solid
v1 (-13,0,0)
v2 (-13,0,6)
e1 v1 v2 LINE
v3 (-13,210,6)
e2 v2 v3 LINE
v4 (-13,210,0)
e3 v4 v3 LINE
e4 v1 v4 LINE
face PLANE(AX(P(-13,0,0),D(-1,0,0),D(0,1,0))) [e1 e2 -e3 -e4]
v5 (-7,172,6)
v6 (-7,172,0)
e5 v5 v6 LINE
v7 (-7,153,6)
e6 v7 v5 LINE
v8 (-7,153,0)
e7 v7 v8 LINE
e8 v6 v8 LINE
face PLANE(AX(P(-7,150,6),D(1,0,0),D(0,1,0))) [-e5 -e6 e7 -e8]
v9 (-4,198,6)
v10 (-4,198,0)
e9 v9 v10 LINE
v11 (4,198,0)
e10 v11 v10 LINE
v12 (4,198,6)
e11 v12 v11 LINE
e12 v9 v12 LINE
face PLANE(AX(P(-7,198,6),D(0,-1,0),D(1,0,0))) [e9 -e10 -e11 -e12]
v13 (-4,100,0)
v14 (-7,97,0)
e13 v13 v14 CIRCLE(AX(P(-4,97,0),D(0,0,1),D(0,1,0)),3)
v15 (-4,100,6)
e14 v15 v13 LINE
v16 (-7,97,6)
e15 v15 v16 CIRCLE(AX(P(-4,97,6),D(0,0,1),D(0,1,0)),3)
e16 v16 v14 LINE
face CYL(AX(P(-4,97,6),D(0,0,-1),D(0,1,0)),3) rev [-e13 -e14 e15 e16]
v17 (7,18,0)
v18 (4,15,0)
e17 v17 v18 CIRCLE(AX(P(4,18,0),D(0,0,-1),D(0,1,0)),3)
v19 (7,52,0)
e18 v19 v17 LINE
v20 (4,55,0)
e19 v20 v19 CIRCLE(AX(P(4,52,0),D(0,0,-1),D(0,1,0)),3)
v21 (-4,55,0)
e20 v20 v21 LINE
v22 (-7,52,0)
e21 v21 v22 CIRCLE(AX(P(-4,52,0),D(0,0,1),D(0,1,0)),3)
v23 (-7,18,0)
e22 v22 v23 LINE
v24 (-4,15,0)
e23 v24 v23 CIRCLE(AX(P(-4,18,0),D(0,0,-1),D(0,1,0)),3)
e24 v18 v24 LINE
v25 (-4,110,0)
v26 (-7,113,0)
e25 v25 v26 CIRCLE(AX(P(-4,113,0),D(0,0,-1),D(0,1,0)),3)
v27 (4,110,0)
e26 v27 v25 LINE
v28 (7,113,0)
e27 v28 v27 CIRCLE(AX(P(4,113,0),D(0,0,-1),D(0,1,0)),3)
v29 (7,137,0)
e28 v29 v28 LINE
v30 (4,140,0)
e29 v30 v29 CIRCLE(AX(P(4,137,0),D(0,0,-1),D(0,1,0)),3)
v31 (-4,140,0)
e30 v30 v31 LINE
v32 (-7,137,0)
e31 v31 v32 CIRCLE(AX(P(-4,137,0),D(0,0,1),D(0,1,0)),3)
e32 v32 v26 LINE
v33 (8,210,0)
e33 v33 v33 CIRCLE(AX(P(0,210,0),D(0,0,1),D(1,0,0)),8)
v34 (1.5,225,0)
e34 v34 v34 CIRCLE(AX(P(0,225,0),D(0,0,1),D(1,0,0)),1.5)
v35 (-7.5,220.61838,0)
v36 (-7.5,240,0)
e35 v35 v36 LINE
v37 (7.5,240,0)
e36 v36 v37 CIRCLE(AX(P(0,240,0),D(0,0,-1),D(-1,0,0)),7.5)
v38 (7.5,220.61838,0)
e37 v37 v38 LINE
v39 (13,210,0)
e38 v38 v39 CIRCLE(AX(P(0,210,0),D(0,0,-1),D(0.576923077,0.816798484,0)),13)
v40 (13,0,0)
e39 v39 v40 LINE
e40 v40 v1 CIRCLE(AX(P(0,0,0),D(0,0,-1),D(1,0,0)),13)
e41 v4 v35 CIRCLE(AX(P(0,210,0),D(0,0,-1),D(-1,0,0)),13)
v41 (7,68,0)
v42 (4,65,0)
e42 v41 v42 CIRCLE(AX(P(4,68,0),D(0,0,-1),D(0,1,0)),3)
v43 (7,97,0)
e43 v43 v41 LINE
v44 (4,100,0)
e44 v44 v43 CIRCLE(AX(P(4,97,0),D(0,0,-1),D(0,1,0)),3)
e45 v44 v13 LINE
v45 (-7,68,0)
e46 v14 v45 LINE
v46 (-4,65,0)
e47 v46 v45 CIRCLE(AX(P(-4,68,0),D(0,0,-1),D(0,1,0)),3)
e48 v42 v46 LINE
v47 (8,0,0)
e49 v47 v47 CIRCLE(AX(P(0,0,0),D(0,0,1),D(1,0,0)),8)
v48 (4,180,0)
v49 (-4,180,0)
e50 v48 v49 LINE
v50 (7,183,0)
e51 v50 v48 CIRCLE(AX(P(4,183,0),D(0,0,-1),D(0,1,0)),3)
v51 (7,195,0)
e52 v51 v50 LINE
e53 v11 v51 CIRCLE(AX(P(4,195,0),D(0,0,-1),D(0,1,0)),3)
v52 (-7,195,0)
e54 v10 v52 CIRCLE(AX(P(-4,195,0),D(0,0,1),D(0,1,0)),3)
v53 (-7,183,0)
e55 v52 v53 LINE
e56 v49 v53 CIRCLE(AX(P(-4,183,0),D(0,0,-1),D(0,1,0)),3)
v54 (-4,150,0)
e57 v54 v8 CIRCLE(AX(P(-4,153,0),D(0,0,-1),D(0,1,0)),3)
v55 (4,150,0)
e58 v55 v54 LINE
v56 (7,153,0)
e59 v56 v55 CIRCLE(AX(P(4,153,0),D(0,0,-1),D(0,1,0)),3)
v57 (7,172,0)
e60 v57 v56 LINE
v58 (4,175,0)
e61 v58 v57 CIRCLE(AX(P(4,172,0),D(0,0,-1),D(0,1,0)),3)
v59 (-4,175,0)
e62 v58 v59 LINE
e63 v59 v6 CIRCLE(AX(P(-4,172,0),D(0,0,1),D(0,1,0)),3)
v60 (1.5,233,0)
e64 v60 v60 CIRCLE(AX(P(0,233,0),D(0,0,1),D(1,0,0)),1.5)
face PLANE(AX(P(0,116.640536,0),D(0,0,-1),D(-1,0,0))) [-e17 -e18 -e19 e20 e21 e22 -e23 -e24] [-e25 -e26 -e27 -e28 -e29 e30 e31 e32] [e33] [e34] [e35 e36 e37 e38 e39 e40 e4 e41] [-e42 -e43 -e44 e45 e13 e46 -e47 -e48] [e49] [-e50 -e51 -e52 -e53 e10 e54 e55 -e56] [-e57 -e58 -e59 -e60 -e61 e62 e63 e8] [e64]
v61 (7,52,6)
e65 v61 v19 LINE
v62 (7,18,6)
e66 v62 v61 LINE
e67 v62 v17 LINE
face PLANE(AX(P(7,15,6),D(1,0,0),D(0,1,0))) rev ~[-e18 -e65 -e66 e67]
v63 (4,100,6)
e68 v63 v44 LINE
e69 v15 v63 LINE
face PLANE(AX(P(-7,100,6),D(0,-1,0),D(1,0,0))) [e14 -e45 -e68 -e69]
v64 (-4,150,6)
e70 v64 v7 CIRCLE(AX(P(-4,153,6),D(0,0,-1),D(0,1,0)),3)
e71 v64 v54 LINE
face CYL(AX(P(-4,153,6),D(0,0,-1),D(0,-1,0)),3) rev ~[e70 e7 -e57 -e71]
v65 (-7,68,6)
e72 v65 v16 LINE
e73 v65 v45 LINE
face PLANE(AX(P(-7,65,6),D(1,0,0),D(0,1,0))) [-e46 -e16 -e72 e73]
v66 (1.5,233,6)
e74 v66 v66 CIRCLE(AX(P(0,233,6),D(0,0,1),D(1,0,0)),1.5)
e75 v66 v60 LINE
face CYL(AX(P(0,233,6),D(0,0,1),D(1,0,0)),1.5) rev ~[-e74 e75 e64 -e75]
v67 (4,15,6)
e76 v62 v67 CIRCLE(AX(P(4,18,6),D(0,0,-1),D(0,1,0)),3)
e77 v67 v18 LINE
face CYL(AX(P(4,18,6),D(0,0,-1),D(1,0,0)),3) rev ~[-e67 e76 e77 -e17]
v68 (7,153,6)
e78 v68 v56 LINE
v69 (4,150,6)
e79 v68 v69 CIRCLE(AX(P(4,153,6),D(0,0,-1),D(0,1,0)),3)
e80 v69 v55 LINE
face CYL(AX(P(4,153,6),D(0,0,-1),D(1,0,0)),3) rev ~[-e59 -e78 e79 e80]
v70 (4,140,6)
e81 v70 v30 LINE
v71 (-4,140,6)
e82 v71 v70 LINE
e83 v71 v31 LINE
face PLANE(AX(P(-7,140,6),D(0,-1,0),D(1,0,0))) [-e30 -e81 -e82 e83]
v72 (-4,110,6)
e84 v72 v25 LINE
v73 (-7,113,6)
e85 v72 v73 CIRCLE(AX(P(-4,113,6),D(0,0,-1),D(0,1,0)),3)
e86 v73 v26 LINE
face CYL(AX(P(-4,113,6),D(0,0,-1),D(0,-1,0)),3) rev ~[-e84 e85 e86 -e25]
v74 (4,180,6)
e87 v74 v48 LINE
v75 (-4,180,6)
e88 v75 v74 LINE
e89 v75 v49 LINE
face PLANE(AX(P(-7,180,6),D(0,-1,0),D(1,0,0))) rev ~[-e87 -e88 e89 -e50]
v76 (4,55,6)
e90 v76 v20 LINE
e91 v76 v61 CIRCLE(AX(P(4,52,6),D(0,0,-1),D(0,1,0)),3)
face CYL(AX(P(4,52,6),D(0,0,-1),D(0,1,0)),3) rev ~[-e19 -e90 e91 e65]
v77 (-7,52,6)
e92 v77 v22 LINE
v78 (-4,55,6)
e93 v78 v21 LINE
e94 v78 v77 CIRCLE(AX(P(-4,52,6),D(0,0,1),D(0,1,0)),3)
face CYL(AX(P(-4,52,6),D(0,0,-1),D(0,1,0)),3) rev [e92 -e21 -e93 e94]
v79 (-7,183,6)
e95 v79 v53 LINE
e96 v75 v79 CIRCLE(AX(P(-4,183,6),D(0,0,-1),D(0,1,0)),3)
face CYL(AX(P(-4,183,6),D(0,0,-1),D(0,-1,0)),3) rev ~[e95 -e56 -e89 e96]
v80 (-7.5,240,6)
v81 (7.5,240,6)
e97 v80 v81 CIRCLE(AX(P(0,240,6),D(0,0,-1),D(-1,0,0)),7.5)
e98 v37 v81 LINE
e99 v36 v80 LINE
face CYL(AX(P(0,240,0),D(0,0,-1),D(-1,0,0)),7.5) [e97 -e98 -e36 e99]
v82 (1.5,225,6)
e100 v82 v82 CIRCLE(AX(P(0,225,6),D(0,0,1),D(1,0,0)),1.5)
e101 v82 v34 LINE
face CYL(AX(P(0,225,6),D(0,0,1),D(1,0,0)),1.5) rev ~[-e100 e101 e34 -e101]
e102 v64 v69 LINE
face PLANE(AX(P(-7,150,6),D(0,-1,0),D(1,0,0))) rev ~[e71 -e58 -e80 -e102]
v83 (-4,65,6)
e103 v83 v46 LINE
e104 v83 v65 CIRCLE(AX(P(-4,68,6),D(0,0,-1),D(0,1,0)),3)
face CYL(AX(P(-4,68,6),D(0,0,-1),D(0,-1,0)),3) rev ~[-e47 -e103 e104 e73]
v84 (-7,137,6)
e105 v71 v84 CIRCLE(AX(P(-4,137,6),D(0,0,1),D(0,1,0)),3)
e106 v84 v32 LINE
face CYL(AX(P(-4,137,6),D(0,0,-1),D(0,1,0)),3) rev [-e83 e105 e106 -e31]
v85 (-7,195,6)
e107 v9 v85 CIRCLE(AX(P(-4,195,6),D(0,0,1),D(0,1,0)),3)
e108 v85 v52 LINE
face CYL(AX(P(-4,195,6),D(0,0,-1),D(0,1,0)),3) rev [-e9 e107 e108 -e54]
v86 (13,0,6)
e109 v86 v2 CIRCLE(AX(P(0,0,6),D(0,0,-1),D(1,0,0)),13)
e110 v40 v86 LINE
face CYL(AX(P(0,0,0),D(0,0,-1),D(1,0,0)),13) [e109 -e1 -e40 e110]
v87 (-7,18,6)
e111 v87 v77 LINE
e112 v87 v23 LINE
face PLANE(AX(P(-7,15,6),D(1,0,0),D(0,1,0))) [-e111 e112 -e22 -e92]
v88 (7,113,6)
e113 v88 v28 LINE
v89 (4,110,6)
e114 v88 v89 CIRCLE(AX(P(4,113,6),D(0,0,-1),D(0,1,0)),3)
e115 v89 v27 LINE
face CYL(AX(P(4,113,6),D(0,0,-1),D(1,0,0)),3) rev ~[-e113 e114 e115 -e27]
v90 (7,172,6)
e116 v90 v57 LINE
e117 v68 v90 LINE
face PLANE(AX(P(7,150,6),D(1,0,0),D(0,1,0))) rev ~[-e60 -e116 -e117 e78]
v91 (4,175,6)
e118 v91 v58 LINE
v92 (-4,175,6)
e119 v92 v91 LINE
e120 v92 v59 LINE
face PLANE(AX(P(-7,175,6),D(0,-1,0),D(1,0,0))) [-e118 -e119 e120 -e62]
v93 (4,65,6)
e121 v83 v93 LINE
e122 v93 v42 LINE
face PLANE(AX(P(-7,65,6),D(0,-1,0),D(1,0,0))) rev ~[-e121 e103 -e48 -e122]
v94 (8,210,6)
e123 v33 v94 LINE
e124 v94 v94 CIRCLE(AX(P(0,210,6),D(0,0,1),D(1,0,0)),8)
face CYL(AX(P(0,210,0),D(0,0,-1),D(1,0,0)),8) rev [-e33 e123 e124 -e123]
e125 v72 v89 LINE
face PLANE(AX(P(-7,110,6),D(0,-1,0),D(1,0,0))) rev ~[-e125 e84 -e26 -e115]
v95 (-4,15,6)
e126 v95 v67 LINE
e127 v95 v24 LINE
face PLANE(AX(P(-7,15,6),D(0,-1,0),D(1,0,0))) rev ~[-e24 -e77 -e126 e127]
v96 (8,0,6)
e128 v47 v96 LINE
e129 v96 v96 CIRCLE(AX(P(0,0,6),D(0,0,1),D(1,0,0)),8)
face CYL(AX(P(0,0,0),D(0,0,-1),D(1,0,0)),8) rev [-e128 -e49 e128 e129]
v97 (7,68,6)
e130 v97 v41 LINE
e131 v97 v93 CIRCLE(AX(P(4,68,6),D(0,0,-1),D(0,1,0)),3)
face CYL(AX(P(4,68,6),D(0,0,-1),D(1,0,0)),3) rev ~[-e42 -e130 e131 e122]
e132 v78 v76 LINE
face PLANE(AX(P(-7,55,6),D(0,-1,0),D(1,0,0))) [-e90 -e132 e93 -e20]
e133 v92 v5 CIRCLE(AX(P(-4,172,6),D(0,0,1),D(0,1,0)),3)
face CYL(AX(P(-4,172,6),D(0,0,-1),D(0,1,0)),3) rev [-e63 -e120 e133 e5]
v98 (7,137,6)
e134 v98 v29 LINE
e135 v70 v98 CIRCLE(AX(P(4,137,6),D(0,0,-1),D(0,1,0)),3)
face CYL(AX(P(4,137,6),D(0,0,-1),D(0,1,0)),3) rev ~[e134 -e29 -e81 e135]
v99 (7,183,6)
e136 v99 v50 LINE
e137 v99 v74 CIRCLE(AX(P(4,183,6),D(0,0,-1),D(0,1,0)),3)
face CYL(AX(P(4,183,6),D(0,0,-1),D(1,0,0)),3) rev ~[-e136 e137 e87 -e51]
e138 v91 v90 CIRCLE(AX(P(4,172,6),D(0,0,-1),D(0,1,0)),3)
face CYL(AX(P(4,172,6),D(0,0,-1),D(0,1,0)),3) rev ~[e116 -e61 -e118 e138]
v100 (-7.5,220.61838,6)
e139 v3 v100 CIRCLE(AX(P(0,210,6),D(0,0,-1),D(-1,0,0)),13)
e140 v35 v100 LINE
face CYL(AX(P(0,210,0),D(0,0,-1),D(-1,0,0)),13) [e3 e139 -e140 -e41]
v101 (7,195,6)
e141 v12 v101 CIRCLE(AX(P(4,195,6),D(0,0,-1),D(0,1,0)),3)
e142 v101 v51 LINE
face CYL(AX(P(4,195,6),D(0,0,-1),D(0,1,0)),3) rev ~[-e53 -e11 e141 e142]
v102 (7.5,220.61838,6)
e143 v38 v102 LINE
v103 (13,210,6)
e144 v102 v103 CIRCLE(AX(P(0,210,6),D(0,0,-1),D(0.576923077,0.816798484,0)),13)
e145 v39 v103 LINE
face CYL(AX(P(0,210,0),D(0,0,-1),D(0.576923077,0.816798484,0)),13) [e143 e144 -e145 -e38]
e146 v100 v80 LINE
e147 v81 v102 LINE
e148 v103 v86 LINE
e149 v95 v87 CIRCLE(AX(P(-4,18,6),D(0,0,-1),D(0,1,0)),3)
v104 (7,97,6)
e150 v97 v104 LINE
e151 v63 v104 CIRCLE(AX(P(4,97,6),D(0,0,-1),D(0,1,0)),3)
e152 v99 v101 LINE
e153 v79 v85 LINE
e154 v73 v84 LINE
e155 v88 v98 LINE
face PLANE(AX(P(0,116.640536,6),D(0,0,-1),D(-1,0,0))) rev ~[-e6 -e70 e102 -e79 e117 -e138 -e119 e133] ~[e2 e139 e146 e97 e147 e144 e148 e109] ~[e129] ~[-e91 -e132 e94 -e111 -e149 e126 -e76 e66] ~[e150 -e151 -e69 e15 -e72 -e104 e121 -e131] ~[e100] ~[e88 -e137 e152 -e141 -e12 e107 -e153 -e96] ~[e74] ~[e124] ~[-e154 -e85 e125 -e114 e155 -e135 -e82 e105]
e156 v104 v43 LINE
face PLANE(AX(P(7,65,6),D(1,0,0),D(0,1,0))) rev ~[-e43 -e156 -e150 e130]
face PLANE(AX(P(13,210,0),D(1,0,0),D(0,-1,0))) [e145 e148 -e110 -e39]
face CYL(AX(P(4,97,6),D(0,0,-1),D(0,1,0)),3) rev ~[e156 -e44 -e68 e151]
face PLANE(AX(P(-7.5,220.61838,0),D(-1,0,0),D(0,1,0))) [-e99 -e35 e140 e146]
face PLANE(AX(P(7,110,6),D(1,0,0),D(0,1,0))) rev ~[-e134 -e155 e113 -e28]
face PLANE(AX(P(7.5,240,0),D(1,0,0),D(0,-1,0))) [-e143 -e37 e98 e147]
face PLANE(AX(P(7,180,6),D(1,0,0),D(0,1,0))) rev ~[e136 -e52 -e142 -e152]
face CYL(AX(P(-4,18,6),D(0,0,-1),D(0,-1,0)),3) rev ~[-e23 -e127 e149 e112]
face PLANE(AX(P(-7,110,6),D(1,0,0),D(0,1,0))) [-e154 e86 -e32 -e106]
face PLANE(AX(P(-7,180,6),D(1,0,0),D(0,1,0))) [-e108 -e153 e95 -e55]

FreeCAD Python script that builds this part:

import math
import FreeCAD as App
import Part
import Sketcher


def edges_at(feature, points):
    """Names of the edges that pass closest to the given points."""
    edges = feature.Shape.Edges
    near = lambda p: min(range(len(edges)), key=lambda i: edges[i].distToShape(Part.Vertex(*p))[0])
    return sorted({f"Edge{near(p) + 1}" for p in points})


def add_polygon(sketch, points):
    """Adds a closed chain of lines whose ends are joined by coincident constraints."""
    first, n = sketch.GeometryCount, len(points)
    for a, b in zip(points, points[1:] + points[:1]):
        sketch.addGeometry(Part.LineSegment(App.Vector(*a, 0), App.Vector(*b, 0)), False)
    for i in range(n):
        sketch.addConstraint(Sketcher.Constraint("Coincident", first + i, 2, first + (i + 1) % n, 1))

doc = App.newDocument("Part")
params = doc.addObject("Spreadsheet::Sheet", "Params")
for row, (alias, value) in enumerate([
    ("sketch1_diameter", "16 mm"),
    ("sketch1_radius", "13 mm"),
    ("sketch1_radius2", "7.5 mm"),
    ("sketch1_height", "210 mm"),
    ("pad1_length", "6 mm"),
    ("sketch2_diameter", "3 mm"),
    ("sketch2_width", "14 mm"),
    ("sketch2_height", "25 mm"),
    ("sketch2_height2", "30 mm"),
    ("sketch2_height3", "35 mm"),
    ("fillet_radius", "3 mm"),
], start=1):
    params.set(f"A{row}", alias)
    params.set(f"B{row}", "=" + value)
    params.setAlias(f"B{row}", alias)

body = doc.addObject("PartDesign::Body", "Body")

sketch1 = body.newObject("Sketcher::SketchObject", "Sketch")
sketch1.AttachmentSupport = (doc.getObject("XY_Plane"), [""])
sketch1.MapMode = "FlatFace"
sketch1.addGeometry([
    Part.LineSegment(App.Vector(-13, 210, 0), App.Vector(-13, 0, 0)),
    Part.ArcOfCircle(Part.Circle(App.Vector(0, 0, 0), App.Vector(0, 0, 1), 13), math.radians(180), math.radians(360)),
    Part.LineSegment(App.Vector(13, 0, 0), App.Vector(13, 210, 0)),
    Part.ArcOfCircle(Part.Circle(App.Vector(0, 210, 0), App.Vector(0, 0, 1), 13), math.radians(0), math.radians(54.765582)),
    Part.LineSegment(App.Vector(7.5, 220.61838, 0), App.Vector(7.5, 240, 0)),
    Part.ArcOfCircle(Part.Circle(App.Vector(0, 240, 0), App.Vector(0, 0, 1), 7.5), math.radians(0), math.radians(180)),
    Part.LineSegment(App.Vector(-7.5, 240, 0), App.Vector(-7.5, 220.61838, 0)),
    Part.ArcOfCircle(Part.Circle(App.Vector(0, 210, 0), App.Vector(0, 0, 1), 13), math.radians(125.234418), math.radians(180)),
    Part.Circle(App.Vector(0, 0, 0), App.Vector(0, 0, 1), 8),
    Part.Circle(App.Vector(0, 210, 0), App.Vector(0, 0, 1), 8),
], False)
sketch1.addConstraint([
    Sketcher.Constraint("Tangent", 0, 2, 1, 1),
    Sketcher.Constraint("Tangent", 1, 2, 2, 1),
    Sketcher.Constraint("Tangent", 2, 2, 3, 1),
    Sketcher.Constraint("Coincident", 3, 2, 4, 1),
    Sketcher.Constraint("Tangent", 4, 2, 5, 1),
    Sketcher.Constraint("Tangent", 5, 2, 6, 1),
    Sketcher.Constraint("Coincident", 6, 2, 7, 1),
    Sketcher.Constraint("Tangent", 7, 2, 0, 1),
    Sketcher.Constraint("Vertical", 0),
    Sketcher.Constraint("Vertical", 2),
    Sketcher.Constraint("Vertical", 4),
    Sketcher.Constraint("Vertical", 6),
    Sketcher.Constraint("Coincident", 1, 3, -1, 1),
    Sketcher.Constraint("Coincident", 8, 3, -1, 1),
    Sketcher.Constraint("Coincident", 7, 3, 3, 3),
    Sketcher.Constraint("Coincident", 9, 3, 3, 3),
    Sketcher.Constraint("Equal", 1, 3),
    Sketcher.Constraint("Equal", 8, 9),
    Sketcher.Constraint("PointOnObject", 5, 3, -2),
    Sketcher.Constraint("Diameter", 8, 16.0),
    Sketcher.Constraint("Radius", 1, 13.0),
    Sketcher.Constraint("Radius", 5, 7.5),
    Sketcher.Constraint("DistanceY", 0, 2, 0, 1, 210.0),
    Sketcher.Constraint("DistanceY", -1, 1, 5, 3, 240.0),
])
sketch1.setExpression("Constraints[19]", "Params.sketch1_diameter")
sketch1.setExpression("Constraints[20]", "Params.sketch1_radius")
sketch1.setExpression("Constraints[21]", "Params.sketch1_radius2")
sketch1.setExpression("Constraints[22]", "Params.sketch1_height")
pad1 = body.newObject("PartDesign::Pad", "Pad")
pad1.Profile = sketch1
pad1.setExpression("Length", "Params.pad1_length")

sketch2 = body.newObject("Sketcher::SketchObject", "Sketch001")
sketch2.AttachmentSupport = (doc.getObject("XY_Plane"), [""])
sketch2.MapMode = "FlatFace"
sketch2.AttachmentOffset = App.Placement(App.Vector(0, 0, 6), App.Rotation())
sketch2.addGeometry(Part.Circle(App.Vector(0, 233, 0), App.Vector(0, 0, 1), 1.5), False)
sketch2.addGeometry(Part.Circle(App.Vector(0, 225, 0), App.Vector(0, 0, 1), 1.5), False)
add_polygon(sketch2, [(-7, 175), (-7, 150), (7, 150), (7, 175)])
add_polygon(sketch2, [(-7, 140), (-7, 110), (7, 110), (7, 140)])
add_polygon(sketch2, [(-7, 100), (-7, 65), (7, 65), (7, 100)])
add_polygon(sketch2, [(-7, 55), (-7, 15), (7, 15), (7, 55)])
add_polygon(sketch2, [(-7, 198), (-7, 180), (7, 180), (7, 198)])
sketch2.addConstraint([
    Sketcher.Constraint("Vertical", 2),
    Sketcher.Constraint("Horizontal", 3),
    Sketcher.Constraint("Vertical", 4),
    Sketcher.Constraint("Horizontal", 5),
    Sketcher.Constraint("Vertical", 6),
    Sketcher.Constraint("Horizontal", 7),
    Sketcher.Constraint("Vertical", 8),
    Sketcher.Constraint("Horizontal", 9),
    Sketcher.Constraint("Vertical", 10),
    Sketcher.Constraint("Horizontal", 11),
    Sketcher.Constraint("Vertical", 12),
    Sketcher.Constraint("Horizontal", 13),
    Sketcher.Constraint("Vertical", 14),
    Sketcher.Constraint("Horizontal", 15),
    Sketcher.Constraint("Vertical", 16),
    Sketcher.Constraint("Horizontal", 17),
    Sketcher.Constraint("Vertical", 18),
    Sketcher.Constraint("Horizontal", 19),
    Sketcher.Constraint("Vertical", 20),
    Sketcher.Constraint("Horizontal", 21),
    Sketcher.Constraint("Equal", 0, 1),
    Sketcher.Constraint("PointOnObject", 0, 3, -2),
    Sketcher.Constraint("PointOnObject", 1, 3, -2),
    Sketcher.Constraint("Vertical", 5, 2, 6, 2),
    Sketcher.Constraint("Vertical", 4, 2, 7, 2),
    Sketcher.Constraint("Vertical", 9, 2, 10, 2),
    Sketcher.Constraint("Vertical", 8, 2, 11, 2),
    Sketcher.Constraint("Vertical", 13, 2, 14, 2),
    Sketcher.Constraint("Vertical", 12, 2, 15, 2),
    Sketcher.Constraint("Vertical", 17, 2, 18, 2),
    Sketcher.Constraint("Vertical", 16, 2, 19, 2),
    Sketcher.Constraint("Diameter", 0, 3.0),
    Sketcher.Constraint("DistanceX", 3, 1, 3, 2, 14.0),
    Sketcher.Constraint("DistanceY", 2, 2, 2, 1, 25.0),
    Sketcher.Constraint("DistanceY", 6, 2, 6, 1, 30.0),
    Sketcher.Constraint("DistanceY", 10, 2, 10, 1, 35.0),
    Sketcher.Constraint("DistanceY", 14, 2, 14, 1, 40.0),
    Sketcher.Constraint("DistanceY", 18, 2, 18, 1, 18.0),
    Sketcher.Constraint("DistanceY", -1, 1, 0, 3, 233.0),
    Sketcher.Constraint("DistanceY", -1, 1, 1, 3, 225.0),
    Sketcher.Constraint("DistanceX", 2, 2, -1, 1, 7.0),
    Sketcher.Constraint("DistanceY", -1, 1, 2, 2, 150.0),
    Sketcher.Constraint("DistanceY", -1, 1, 6, 2, 110.0),
    Sketcher.Constraint("DistanceY", -1, 1, 10, 2, 65.0),
    Sketcher.Constraint("DistanceY", -1, 1, 14, 2, 15.0),
    Sketcher.Constraint("DistanceY", -1, 1, 18, 2, 180.0),
])
sketch2.setExpression("Constraints[51]", "Params.sketch2_diameter")
sketch2.setExpression("Constraints[52]", "Params.sketch2_width")
sketch2.setExpression("Constraints[53]", "Params.sketch2_height")
sketch2.setExpression("Constraints[54]", "Params.sketch2_height2")
sketch2.setExpression("Constraints[55]", "Params.sketch2_height3")
pocket1 = body.newObject("PartDesign::Pocket", "Pocket")
pocket1.Profile = sketch2
pocket1.Type = "ThroughAll"
doc.recompute()

fillet = body.newObject("PartDesign::Fillet", "Fillet")
fillet.Base = (pocket1, edges_at(pocket1, [
    (7, 55, 3),
    (7, 15, 3),
    (-7, 15, 3),
    (-7, 55, 3),
    (7, 100, 3),
    (7, 65, 3),
    (-7, 65, 3),
    (-7, 100, 3),
    (7, 140, 3),
    (7, 110, 3),
    (-7, 110, 3),
    (-7, 140, 3),
    (7, 198, 3),
    (7, 180, 3),
    (-7, 180, 3),
    (-7, 198, 3),
    (7, 175, 3),
    (7, 150, 3),
    (-7, 150, 3),
    (-7, 175, 3),
]))
fillet.setExpression("Radius", "Params.fillet_radius")

doc.recompute()
